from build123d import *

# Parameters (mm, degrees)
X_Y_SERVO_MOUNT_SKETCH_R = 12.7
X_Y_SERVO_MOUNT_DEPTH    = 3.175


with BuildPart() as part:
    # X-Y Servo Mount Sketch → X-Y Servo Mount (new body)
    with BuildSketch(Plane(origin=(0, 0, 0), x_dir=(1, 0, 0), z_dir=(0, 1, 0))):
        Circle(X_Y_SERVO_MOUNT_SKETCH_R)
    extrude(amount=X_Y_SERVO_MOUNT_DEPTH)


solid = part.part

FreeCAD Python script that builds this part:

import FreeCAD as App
import Part
import Sketcher
from FreeCAD import Vector
Q = App.Units.Quantity

doc = App.newDocument("Part")
params = doc.addObject("Spreadsheet::Sheet", "Params")
for row, (alias, value) in enumerate([
    ("sketch1_diameter", "1 in"),
    ("pad1_length", "0.125 in"),
], start=1):
    params.set(f"A{row}", alias)
    params.set(f"B{row}", "=" + value)
    params.setAlias(f"B{row}", alias)

body = doc.addObject("PartDesign::Body", "Body")

# Sketch on XZ plane
sketch1 = doc.addObject("Sketcher::SketchObject", "Sketch")
body.addObject(sketch1)
sketch1.AttachmentSupport = (doc.XZ_Plane, [""])
sketch1.MapMode = "FlatFace"
sketch1.addGeometry(Part.Circle(Vector(0, 0, 0), Vector(0, 0, 1), 13), False)
sketch1.addConstraint([
    Sketcher.Constraint("Coincident", 0, 3, -1, 1),
    Sketcher.Constraint("Diameter", 0, Q("1 in")),
])
sketch1.setExpression("Constraints[1]", "Params.sketch1_diameter")
pad1 = doc.addObject("PartDesign::Pad", "Pad")
body.addObject(pad1)
pad1.Profile = sketch1
pad1.setExpression("Length", "Params.pad1_length")
pad1.Reversed = True

doc.recompute()
